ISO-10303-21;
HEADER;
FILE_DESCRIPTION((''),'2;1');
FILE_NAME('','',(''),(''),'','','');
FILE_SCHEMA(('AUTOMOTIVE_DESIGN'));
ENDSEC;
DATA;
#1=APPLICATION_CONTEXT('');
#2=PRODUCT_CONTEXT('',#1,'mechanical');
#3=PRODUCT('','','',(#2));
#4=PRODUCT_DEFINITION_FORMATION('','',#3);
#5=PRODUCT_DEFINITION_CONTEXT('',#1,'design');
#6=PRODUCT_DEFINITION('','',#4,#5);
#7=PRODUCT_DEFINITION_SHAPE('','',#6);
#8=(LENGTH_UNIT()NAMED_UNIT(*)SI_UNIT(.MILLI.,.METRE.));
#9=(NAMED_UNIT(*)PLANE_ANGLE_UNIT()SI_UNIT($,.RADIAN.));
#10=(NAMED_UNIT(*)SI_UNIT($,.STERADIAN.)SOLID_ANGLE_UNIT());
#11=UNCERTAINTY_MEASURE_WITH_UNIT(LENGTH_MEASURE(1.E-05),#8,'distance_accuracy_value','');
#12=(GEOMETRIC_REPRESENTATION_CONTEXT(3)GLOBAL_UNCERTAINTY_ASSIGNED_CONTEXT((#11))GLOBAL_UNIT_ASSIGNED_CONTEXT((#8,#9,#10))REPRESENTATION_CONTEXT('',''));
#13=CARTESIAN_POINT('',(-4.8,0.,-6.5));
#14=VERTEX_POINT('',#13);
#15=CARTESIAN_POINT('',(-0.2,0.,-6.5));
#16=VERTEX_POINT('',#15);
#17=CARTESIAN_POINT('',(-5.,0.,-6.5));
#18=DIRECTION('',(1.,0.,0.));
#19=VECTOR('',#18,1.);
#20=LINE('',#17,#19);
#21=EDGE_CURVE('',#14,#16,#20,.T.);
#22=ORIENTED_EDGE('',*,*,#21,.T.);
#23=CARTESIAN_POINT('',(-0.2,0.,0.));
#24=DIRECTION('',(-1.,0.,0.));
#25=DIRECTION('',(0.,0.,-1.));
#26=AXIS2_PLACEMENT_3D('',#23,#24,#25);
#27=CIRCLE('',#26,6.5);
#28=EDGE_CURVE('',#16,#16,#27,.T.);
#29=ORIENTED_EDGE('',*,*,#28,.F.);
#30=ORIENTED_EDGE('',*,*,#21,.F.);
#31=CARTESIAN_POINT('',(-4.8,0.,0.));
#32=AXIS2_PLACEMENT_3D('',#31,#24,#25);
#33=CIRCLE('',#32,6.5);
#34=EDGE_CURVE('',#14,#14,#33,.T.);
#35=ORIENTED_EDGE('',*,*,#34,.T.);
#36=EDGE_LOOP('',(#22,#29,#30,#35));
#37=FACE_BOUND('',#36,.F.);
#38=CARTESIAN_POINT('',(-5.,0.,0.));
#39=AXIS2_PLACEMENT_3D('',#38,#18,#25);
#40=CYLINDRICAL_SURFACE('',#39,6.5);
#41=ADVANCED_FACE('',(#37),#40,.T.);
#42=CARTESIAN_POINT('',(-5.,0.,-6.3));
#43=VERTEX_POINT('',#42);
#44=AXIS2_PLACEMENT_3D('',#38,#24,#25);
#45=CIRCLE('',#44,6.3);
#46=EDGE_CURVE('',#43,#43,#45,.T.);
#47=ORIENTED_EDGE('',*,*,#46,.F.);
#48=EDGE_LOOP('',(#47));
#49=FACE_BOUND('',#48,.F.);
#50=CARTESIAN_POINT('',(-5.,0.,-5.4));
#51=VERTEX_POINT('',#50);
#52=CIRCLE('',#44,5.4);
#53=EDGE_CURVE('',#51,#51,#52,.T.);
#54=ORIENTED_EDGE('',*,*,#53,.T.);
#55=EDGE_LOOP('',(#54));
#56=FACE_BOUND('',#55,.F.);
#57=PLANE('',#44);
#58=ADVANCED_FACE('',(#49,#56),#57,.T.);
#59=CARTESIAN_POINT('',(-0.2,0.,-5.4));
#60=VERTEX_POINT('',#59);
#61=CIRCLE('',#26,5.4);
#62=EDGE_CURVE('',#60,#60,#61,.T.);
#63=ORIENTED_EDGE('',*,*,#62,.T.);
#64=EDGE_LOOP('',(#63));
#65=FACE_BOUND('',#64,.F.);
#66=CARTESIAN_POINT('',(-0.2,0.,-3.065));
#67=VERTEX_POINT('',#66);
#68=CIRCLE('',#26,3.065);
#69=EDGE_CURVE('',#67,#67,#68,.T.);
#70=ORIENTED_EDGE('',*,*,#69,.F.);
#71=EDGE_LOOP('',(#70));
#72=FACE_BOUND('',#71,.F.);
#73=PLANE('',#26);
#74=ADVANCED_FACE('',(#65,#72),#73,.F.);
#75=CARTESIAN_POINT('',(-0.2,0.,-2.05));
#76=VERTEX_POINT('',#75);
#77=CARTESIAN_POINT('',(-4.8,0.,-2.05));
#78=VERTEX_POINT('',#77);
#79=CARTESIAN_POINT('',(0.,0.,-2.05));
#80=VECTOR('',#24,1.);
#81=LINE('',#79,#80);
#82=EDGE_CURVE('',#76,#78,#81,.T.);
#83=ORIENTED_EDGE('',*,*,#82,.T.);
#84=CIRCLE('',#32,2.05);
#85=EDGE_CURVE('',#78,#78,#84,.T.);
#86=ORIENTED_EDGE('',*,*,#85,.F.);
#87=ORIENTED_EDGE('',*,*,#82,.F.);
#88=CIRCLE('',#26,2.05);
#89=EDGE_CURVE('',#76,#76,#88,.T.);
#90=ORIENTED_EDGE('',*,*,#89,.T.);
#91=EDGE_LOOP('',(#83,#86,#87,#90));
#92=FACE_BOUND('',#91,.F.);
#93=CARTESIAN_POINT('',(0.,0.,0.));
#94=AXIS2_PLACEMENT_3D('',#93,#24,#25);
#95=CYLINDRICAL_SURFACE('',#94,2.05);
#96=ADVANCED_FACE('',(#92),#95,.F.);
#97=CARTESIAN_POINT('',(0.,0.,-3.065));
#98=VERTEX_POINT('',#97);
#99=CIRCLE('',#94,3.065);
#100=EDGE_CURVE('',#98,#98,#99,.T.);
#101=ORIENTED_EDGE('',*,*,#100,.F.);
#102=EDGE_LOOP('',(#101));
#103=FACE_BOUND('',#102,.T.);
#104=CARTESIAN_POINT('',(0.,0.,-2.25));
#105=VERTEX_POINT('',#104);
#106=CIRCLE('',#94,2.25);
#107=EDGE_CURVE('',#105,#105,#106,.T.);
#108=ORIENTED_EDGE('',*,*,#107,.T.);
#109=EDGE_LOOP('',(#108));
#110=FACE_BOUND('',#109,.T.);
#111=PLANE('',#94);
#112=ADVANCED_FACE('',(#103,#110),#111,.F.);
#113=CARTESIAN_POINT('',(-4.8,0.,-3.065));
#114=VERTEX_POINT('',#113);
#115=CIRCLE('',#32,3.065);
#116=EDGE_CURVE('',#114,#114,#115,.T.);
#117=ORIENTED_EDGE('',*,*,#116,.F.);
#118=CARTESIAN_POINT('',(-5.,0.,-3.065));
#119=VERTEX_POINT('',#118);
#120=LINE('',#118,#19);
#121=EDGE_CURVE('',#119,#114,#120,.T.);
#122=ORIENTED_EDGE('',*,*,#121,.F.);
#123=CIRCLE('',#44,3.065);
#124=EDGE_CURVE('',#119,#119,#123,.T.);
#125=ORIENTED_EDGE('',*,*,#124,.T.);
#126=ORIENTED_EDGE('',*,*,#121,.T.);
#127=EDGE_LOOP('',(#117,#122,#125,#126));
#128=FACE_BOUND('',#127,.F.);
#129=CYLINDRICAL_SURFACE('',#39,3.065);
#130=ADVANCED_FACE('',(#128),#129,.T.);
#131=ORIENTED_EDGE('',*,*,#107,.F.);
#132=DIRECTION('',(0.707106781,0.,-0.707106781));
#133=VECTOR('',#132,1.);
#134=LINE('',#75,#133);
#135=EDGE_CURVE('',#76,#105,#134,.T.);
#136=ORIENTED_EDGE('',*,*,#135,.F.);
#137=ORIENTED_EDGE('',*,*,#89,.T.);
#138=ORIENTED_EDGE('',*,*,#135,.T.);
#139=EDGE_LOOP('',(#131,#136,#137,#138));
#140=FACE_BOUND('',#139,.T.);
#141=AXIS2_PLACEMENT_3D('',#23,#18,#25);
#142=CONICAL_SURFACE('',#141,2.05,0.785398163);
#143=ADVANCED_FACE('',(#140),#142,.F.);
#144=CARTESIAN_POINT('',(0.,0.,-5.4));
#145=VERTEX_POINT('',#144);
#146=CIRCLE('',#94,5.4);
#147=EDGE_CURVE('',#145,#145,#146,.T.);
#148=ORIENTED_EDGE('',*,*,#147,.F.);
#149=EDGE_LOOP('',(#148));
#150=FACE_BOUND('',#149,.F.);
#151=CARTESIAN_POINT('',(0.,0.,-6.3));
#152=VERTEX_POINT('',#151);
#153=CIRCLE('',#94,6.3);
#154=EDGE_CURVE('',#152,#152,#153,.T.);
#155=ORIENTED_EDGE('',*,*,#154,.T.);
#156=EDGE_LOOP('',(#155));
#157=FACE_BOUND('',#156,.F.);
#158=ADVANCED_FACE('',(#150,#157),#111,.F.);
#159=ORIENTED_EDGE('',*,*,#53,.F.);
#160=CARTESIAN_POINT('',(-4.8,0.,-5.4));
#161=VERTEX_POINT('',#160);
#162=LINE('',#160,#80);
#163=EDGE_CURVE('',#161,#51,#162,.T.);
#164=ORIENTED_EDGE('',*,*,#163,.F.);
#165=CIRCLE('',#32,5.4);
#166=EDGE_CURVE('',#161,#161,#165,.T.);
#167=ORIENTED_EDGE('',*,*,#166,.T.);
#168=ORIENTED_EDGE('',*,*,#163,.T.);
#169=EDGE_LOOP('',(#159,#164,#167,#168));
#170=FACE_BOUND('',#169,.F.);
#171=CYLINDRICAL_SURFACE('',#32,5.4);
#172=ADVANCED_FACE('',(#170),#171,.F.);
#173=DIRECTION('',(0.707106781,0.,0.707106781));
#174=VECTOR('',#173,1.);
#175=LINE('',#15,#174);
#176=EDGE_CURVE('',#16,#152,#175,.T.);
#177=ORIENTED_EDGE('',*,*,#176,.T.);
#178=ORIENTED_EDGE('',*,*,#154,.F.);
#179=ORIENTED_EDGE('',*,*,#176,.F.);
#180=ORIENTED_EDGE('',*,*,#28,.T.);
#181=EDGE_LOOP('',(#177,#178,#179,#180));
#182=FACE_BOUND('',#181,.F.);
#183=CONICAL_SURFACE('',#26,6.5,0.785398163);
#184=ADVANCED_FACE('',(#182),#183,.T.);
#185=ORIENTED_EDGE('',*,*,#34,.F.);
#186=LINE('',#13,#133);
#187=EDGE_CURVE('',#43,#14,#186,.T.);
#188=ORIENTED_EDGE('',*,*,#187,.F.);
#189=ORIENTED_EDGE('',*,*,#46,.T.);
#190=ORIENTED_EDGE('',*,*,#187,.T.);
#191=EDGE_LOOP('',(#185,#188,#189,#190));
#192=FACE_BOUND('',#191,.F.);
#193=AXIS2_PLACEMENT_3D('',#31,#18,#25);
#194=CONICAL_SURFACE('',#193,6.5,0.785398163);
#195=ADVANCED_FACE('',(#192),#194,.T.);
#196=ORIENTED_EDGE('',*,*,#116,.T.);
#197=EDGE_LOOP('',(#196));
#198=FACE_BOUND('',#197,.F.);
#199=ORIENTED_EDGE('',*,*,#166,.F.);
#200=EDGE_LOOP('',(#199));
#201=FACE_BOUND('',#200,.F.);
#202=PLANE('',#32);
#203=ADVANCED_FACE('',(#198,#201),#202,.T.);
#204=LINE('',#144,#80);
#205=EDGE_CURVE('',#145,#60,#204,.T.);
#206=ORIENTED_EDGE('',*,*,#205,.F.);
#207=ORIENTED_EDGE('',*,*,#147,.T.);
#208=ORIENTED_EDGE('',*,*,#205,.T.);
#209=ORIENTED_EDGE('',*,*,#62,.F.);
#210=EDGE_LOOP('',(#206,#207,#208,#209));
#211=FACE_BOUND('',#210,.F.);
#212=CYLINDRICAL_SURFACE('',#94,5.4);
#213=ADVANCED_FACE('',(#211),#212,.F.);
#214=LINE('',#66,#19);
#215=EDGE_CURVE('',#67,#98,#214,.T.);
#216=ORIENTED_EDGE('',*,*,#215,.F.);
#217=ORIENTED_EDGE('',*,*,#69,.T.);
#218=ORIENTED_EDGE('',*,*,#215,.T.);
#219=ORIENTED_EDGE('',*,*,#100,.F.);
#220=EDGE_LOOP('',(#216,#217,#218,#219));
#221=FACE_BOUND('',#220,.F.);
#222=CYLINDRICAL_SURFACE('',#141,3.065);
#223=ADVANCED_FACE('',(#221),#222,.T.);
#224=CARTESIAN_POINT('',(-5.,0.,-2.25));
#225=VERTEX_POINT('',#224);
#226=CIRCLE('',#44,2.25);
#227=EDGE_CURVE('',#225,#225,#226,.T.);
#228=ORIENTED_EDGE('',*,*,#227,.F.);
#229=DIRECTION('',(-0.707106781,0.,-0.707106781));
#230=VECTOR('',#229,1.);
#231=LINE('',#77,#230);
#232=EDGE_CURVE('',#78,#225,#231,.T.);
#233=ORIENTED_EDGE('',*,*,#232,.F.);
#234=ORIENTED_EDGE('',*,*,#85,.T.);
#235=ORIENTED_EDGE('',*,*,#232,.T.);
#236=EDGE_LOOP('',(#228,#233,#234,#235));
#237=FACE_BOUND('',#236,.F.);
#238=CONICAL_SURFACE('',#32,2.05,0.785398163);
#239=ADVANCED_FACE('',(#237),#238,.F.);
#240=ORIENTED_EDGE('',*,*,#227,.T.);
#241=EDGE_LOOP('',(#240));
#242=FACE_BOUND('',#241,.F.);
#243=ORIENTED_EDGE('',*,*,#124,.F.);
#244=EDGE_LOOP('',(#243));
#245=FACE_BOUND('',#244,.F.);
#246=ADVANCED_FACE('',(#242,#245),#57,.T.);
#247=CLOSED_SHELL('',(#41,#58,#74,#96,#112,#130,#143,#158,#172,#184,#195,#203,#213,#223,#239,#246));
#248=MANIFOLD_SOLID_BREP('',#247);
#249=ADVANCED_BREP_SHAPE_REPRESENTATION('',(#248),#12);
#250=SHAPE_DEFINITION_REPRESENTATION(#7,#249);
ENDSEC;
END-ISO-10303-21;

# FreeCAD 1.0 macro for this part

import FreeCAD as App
import Part
import Sketcher
from FreeCAD import Vector
Q = App.Units.Quantity


def edges_at(feature, points):
    """Names of the edges that pass closest to the given points."""
    edges = feature.Shape.Edges
    near = lambda p: min(range(len(edges)), key=lambda i: edges[i].distToShape(Part.Vertex(*p))[0])
    return sorted({f"Edge{near(p) + 1}" for p in points})


def add_polygon(sketch, points):
    """Adds a closed chain of lines whose ends are joined by coincident constraints."""
    first, n = sketch.GeometryCount, len(points)
    for a, b in zip(points, points[1:] + points[:1]):
        sketch.addGeometry(Part.LineSegment(App.Vector(*a, 0), App.Vector(*b, 0)), False)
    for i in range(n):
        sketch.addConstraint(Sketcher.Constraint("Coincident", first + i, 2, first + (i + 1) % n, 1))

doc = App.newDocument("Part")
body = doc.addObject("PartDesign::Body", "Body")

# Sketch on XZ plane
sketch1 = body.newObject("Sketcher::SketchObject", "Sketch")
sketch1.AttachmentSupport = (doc.getObject("XZ_Plane"), [""])
sketch1.MapMode = "FlatFace"
add_polygon(sketch1, [(-5, -2.05), (0, -2.05), (0, -3.06), (-0.2, -3.06), (-0.2, -5.4), (0, -5.4), (0, -6.5), (-5, -6.5), (-5, -5.4), (-4.8, -5.4), (-4.8, -3.06), (-5, -3.06)])  # lines 0-11
sketch1.addConstraint([
    Sketcher.Constraint("Horizontal", 0),
    Sketcher.Constraint("Vertical", 1),
    Sketcher.Constraint("Horizontal", 2),
    Sketcher.Constraint("Vertical", 3),
    Sketcher.Constraint("Horizontal", 4),
    Sketcher.Constraint("Vertical", 5),
    Sketcher.Constraint("Horizontal", 6),
    Sketcher.Constraint("Vertical", 7),
    Sketcher.Constraint("Horizontal", 8),
    Sketcher.Constraint("Vertical", 9),
    Sketcher.Constraint("Horizontal", 10),
    Sketcher.Constraint("Vertical", 11),
    Sketcher.Constraint("PointOnObject", 0, 2, -2),
    Sketcher.Constraint("PointOnObject", 4, 2, -2),
    Sketcher.Constraint("Horizontal", 4, 2, 7, 2),
    Sketcher.Constraint("Horizontal", 2, 2, 9, 2),
    Sketcher.Constraint("Vertical", 7, 2, 10, 2),
    Sketcher.Constraint("Equal", 4, 8),
    Sketcher.Constraint("DistanceX", 0, 1, 0, 2, Q("5 mm")),
    Sketcher.Constraint("DistanceX", 2, 2, 2, 1, Q("0.2 mm")),
    Sketcher.Constraint("DistanceY", 3, 2, -1, 1, Q("5.4 mm")),
    Sketcher.Constraint("DistanceY", 5, 2, -1, 1, Q("6.5 mm")),
    Sketcher.Constraint("DistanceY", 0, 2, -1, 1, Q("2.05 mm")),
    Sketcher.Constraint("DistanceY", 1, 2, -1, 1, Q("3.065 mm")),
])
revolution = body.newObject("PartDesign::Revolution", "Revolution")
revolution.Profile = sketch1
revolution.ReferenceAxis = (sketch1, ["H_Axis"])
revolution.Angle = 360
doc.recompute()

chamfer = body.newObject("PartDesign::Chamfer", "Chamfer")
chamfer.Base = (revolution, edges_at(revolution, [
    (0, 0, 6.5),
    (-5, 0, 6.5),
    (0, 0, 2.05),
    (-5, 0, 2.05),
]))
chamfer.Size = 0.2

doc.recompute()
